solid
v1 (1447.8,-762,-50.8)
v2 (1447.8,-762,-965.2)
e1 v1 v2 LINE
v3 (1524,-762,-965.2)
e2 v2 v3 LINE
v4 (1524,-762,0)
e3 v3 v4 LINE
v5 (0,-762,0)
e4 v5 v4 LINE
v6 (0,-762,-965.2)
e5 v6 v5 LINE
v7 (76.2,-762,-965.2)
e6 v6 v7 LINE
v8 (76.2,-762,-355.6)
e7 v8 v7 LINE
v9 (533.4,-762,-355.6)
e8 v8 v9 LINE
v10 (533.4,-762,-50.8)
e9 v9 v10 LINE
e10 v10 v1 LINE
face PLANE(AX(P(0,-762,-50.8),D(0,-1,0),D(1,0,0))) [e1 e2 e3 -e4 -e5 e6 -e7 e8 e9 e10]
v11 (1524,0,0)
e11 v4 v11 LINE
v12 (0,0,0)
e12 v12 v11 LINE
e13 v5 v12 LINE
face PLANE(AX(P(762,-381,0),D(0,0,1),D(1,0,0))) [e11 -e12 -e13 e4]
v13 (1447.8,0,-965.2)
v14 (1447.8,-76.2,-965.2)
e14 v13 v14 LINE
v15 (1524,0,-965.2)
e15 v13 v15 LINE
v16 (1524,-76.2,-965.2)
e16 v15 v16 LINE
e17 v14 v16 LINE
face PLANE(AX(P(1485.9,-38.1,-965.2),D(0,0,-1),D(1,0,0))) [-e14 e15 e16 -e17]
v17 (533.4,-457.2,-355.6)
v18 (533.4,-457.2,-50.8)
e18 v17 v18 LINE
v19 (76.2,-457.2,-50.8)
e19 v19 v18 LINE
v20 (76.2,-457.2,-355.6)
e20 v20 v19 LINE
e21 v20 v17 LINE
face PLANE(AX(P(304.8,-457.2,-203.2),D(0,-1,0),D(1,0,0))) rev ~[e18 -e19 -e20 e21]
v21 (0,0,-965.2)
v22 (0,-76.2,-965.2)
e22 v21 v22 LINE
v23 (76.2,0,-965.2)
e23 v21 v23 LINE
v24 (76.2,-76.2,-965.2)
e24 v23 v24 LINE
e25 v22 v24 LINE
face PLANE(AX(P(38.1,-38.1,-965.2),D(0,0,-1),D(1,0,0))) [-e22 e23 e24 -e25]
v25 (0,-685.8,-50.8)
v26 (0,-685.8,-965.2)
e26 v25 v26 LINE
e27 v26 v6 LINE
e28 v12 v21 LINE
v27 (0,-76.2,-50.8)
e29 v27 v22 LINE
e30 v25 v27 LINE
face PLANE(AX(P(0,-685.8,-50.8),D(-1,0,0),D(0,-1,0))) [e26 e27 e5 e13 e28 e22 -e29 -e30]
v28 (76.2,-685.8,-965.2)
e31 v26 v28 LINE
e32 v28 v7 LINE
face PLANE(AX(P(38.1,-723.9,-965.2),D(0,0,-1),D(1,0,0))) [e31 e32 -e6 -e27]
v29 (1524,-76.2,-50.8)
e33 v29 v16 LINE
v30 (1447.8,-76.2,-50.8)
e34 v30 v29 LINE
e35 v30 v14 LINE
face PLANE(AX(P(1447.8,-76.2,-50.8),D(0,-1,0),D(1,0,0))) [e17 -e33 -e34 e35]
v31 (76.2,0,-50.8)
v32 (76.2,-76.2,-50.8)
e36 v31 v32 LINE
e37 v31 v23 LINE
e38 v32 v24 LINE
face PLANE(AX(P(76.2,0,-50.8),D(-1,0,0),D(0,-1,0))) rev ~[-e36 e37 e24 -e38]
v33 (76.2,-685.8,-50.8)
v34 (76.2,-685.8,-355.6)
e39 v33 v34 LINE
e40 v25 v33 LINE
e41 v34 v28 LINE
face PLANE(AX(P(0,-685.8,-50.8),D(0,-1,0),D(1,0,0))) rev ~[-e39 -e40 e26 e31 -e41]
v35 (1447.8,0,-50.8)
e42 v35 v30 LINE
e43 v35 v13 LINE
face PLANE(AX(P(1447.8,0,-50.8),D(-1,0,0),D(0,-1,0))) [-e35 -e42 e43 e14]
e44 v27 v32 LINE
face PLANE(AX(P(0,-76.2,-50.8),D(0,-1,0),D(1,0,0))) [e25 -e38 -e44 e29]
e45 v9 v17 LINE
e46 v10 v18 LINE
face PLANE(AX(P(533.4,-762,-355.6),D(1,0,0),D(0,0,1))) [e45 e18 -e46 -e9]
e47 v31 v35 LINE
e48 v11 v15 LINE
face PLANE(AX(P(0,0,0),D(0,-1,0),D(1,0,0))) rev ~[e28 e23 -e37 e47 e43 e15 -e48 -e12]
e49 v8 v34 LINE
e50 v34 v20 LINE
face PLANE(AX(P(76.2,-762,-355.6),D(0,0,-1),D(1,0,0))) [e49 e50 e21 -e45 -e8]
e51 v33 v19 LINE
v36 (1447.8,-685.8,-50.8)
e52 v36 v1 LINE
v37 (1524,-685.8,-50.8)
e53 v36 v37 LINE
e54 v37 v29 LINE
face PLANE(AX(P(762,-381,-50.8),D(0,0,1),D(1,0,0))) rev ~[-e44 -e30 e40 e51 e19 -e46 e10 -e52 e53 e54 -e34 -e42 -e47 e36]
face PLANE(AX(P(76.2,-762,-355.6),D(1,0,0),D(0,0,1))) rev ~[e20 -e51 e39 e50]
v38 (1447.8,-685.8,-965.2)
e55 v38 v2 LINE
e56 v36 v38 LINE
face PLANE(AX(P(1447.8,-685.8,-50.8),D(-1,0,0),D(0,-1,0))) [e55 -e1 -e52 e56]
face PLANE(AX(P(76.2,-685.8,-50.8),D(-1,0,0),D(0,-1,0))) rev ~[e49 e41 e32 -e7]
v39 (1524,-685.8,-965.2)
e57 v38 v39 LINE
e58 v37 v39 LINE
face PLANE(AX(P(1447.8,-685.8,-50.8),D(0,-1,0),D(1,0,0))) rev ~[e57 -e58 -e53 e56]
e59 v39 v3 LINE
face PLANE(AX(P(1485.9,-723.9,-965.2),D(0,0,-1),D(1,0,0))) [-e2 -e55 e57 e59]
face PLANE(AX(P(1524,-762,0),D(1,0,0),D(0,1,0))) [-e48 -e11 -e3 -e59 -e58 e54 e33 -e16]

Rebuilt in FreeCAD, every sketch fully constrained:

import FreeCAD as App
import Part
import Sketcher
from FreeCAD import Vector
Q = App.Units.Quantity

doc = App.newDocument("Part")
body = doc.addObject("PartDesign::Body", "Body")

sketch1 = body.newObject("Sketcher::SketchObject", "Sketch")
sketch1.AttachmentSupport = (doc.getObject("XY_Plane"), [""])
sketch1.MapMode = "FlatFace"
sketch1.addGeometry(Part.LineSegment(Vector(0, 0, 0), Vector(0, -762, 0)), False)
sketch1.addGeometry(Part.LineSegment(Vector(0, -762, 0), Vector(1524, -762, 0)), False)
sketch1.addGeometry(Part.LineSegment(Vector(1524, -762, 0), Vector(1524, 0, 0)), False)
sketch1.addGeometry(Part.LineSegment(Vector(1524, 0, 0), Vector(0, 0, 0)), False)
sketch1.addConstraint(Sketcher.Constraint("Coincident", 0, 2, 1, 1))
sketch1.addConstraint(Sketcher.Constraint("Coincident", 1, 2, 2, 1))
sketch1.addConstraint(Sketcher.Constraint("Coincident", 2, 2, 3, 1))
sketch1.addConstraint(Sketcher.Constraint("Coincident", 3, 2, 0, 1))
sketch1.addConstraint(Sketcher.Constraint("Vertical", 0))
sketch1.addConstraint(Sketcher.Constraint("Horizontal", 1))
sketch1.addConstraint(Sketcher.Constraint("Vertical", 2))
sketch1.addConstraint(Sketcher.Constraint("Horizontal", 3))
sketch1.addConstraint(Sketcher.Constraint("Coincident", 3, 2, -1, 1))
sketch1.addConstraint(Sketcher.Constraint("DistanceX", 1, 1, 1, 2, Q("60 in")))
sketch1.addConstraint(Sketcher.Constraint("DistanceY", 0, 2, 0, 1, Q("30 in")))
pad1 = body.newObject("PartDesign::Pad", "Pad")
pad1.Profile = sketch1
pad1.Length = Q("2 in")
pad1.Reversed = True

sketch2 = body.newObject("Sketcher::SketchObject", "Sketch001")
sketch2.AttachmentSupport = (doc.getObject("XY_Plane"), [""])
sketch2.MapMode = "FlatFace"
sketch2.AttachmentOffset = App.Placement(Vector(0, 0, -2 * 25.4), App.Rotation())
sketch2.addGeometry(Part.LineSegment(Vector(0, -762, 0), Vector(0, -685.8, 0)), False)
sketch2.addGeometry(Part.LineSegment(Vector(0, -685.8, 0), Vector(76.2, -685.8, 0)), False)
sketch2.addGeometry(Part.LineSegment(Vector(76.2, -685.8, 0), Vector(76.2, -762, 0)), False)
sketch2.addGeometry(Part.LineSegment(Vector(76.2, -762, 0), Vector(0, -762, 0)), False)
sketch2.addGeometry(Part.LineSegment(Vector(0, -76.2, 0), Vector(0, 0, 0)), False)
sketch2.addGeometry(Part.LineSegment(Vector(0, 0, 0), Vector(76.2, 0, 0)), False)
sketch2.addGeometry(Part.LineSegment(Vector(76.2, 0, 0), Vector(76.2, -76.2, 0)), False)
sketch2.addGeometry(Part.LineSegment(Vector(76.2, -76.2, 0), Vector(0, -76.2, 0)), False)
sketch2.addGeometry(Part.LineSegment(Vector(1447.8, -76.2, 0), Vector(1447.8, 0, 0)), False)
sketch2.addGeometry(Part.LineSegment(Vector(1447.8, 0, 0), Vector(1524, 0, 0)), False)
sketch2.addGeometry(Part.LineSegment(Vector(1524, 0, 0), Vector(1524, -76.2, 0)), False)
sketch2.addGeometry(Part.LineSegment(Vector(1524, -76.2, 0), Vector(1447.8, -76.2, 0)), False)
sketch2.addGeometry(Part.LineSegment(Vector(1447.8, -762, 0), Vector(1447.8, -685.8, 0)), False)
sketch2.addGeometry(Part.LineSegment(Vector(1447.8, -685.8, 0), Vector(1524, -685.8, 0)), False)
sketch2.addGeometry(Part.LineSegment(Vector(1524, -685.8, 0), Vector(1524, -762, 0)), False)
sketch2.addGeometry(Part.LineSegment(Vector(1524, -762, 0), Vector(1447.8, -762, 0)), False)
sketch2.addConstraint(Sketcher.Constraint("Coincident", 0, 2, 1, 1))
sketch2.addConstraint(Sketcher.Constraint("Coincident", 1, 2, 2, 1))
sketch2.addConstraint(Sketcher.Constraint("Coincident", 2, 2, 3, 1))
sketch2.addConstraint(Sketcher.Constraint("Coincident", 3, 2, 0, 1))
sketch2.addConstraint(Sketcher.Constraint("Coincident", 4, 2, 5, 1))
sketch2.addConstraint(Sketcher.Constraint("Coincident", 5, 2, 6, 1))
sketch2.addConstraint(Sketcher.Constraint("Coincident", 6, 2, 7, 1))
sketch2.addConstraint(Sketcher.Constraint("Coincident", 7, 2, 4, 1))
sketch2.addConstraint(Sketcher.Constraint("Coincident", 8, 2, 9, 1))
sketch2.addConstraint(Sketcher.Constraint("Coincident", 9, 2, 10, 1))
sketch2.addConstraint(Sketcher.Constraint("Coincident", 10, 2, 11, 1))
sketch2.addConstraint(Sketcher.Constraint("Coincident", 11, 2, 8, 1))
sketch2.addConstraint(Sketcher.Constraint("Coincident", 12, 2, 13, 1))
sketch2.addConstraint(Sketcher.Constraint("Coincident", 13, 2, 14, 1))
sketch2.addConstraint(Sketcher.Constraint("Coincident", 14, 2, 15, 1))
sketch2.addConstraint(Sketcher.Constraint("Coincident", 15, 2, 12, 1))
sketch2.addConstraint(Sketcher.Constraint("Vertical", 0))
sketch2.addConstraint(Sketcher.Constraint("Horizontal", 1))
sketch2.addConstraint(Sketcher.Constraint("Vertical", 2))
sketch2.addConstraint(Sketcher.Constraint("Horizontal", 3))
sketch2.addConstraint(Sketcher.Constraint("Vertical", 4))
sketch2.addConstraint(Sketcher.Constraint("Horizontal", 5))
sketch2.addConstraint(Sketcher.Constraint("Vertical", 6))
sketch2.addConstraint(Sketcher.Constraint("Horizontal", 7))
sketch2.addConstraint(Sketcher.Constraint("Vertical", 8))
sketch2.addConstraint(Sketcher.Constraint("Horizontal", 9))
sketch2.addConstraint(Sketcher.Constraint("Vertical", 10))
sketch2.addConstraint(Sketcher.Constraint("Horizontal", 11))
sketch2.addConstraint(Sketcher.Constraint("Vertical", 12))
sketch2.addConstraint(Sketcher.Constraint("Horizontal", 13))
sketch2.addConstraint(Sketcher.Constraint("Vertical", 14))
sketch2.addConstraint(Sketcher.Constraint("Horizontal", 15))
sketch2.addConstraint(Sketcher.Constraint("Coincident", 4, 2, -1, 1))
sketch2.addConstraint(Sketcher.Constraint("PointOnObject", 0, 2, -2))
sketch2.addConstraint(Sketcher.Constraint("PointOnObject", 8, 2, -1))
sketch2.addConstraint(Sketcher.Constraint("Horizontal", 7, 2, 10, 2))
sketch2.addConstraint(Sketcher.Constraint("Horizontal", 1, 2, 12, 2))
sketch2.addConstraint(Sketcher.Constraint("Horizontal", 3, 2, 14, 2))
sketch2.addConstraint(Sketcher.Constraint("Vertical", 2, 2, 5, 2))
sketch2.addConstraint(Sketcher.Constraint("Vertical", 11, 2, 12, 2))
sketch2.addConstraint(Sketcher.Constraint("Vertical", 10, 2, 13, 2))
sketch2.addConstraint(Sketcher.Constraint("Equal", 7, 9))
sketch2.addConstraint(Sketcher.Constraint("Equal", 15, 0))
sketch2.addConstraint(Sketcher.Constraint("Equal", 2, 4))
sketch2.addConstraint(Sketcher.Constraint("DistanceX", 1, 1, 1, 2, Q("3 in")))
sketch2.addConstraint(Sketcher.Constraint("DistanceY", 0, 2, -1, 1, Q("27 in")))
sketch2.addConstraint(Sketcher.Constraint("DistanceX", -1, 1, 8, 2, Q("57 in")))
pad2 = body.newObject("PartDesign::Pad", "Pad001")
pad2.Profile = sketch2
pad2.Length = Q("36 in")
pad2.Reversed = True

sketch3 = body.newObject("Sketcher::SketchObject", "Sketch002")
sketch3.AttachmentSupport = (doc.getObject("XZ_Plane"), [""])
sketch3.MapMode = "FlatFace"
sketch3.AttachmentOffset = App.Placement(Vector(0, 0, 30 * 25.4), App.Rotation())
sketch3.addGeometry(Part.LineSegment(Vector(76, -51, 0), Vector(76, -356, 0)), False)
sketch3.addGeometry(Part.LineSegment(Vector(76, -356, 0), Vector(533, -356, 0)), False)
sketch3.addGeometry(Part.LineSegment(Vector(533, -356, 0), Vector(533, -51, 0)), False)
sketch3.addGeometry(Part.LineSegment(Vector(533, -51, 0), Vector(76, -51, 0)), False)
sketch3.addConstraint(Sketcher.Constraint("Coincident", 0, 2, 1, 1))
sketch3.addConstraint(Sketcher.Constraint("Coincident", 1, 2, 2, 1))
sketch3.addConstraint(Sketcher.Constraint("Coincident", 2, 2, 3, 1))
sketch3.addConstraint(Sketcher.Constraint("Coincident", 3, 2, 0, 1))
sketch3.addConstraint(Sketcher.Constraint("Vertical", 0))
sketch3.addConstraint(Sketcher.Constraint("Horizontal", 1))
sketch3.addConstraint(Sketcher.Constraint("Vertical", 2))
sketch3.addConstraint(Sketcher.Constraint("Horizontal", 3))
sketch3.addConstraint(Sketcher.Constraint("DistanceX", 1, 1, 1, 2, Q("18 in")))
sketch3.addConstraint(Sketcher.Constraint("DistanceY", 0, 2, 0, 1, Q("12 in")))
sketch3.addConstraint(Sketcher.Constraint("DistanceX", -1, 1, 0, 2, Q("3 in")))
sketch3.addConstraint(Sketcher.Constraint("DistanceY", 0, 2, -1, 1, Q("14 in")))
pad3 = body.newObject("PartDesign::Pad", "Pad002")
pad3.Profile = sketch3
pad3.Length = Q("12 in")
pad3.Reversed = True

doc.recompute()
